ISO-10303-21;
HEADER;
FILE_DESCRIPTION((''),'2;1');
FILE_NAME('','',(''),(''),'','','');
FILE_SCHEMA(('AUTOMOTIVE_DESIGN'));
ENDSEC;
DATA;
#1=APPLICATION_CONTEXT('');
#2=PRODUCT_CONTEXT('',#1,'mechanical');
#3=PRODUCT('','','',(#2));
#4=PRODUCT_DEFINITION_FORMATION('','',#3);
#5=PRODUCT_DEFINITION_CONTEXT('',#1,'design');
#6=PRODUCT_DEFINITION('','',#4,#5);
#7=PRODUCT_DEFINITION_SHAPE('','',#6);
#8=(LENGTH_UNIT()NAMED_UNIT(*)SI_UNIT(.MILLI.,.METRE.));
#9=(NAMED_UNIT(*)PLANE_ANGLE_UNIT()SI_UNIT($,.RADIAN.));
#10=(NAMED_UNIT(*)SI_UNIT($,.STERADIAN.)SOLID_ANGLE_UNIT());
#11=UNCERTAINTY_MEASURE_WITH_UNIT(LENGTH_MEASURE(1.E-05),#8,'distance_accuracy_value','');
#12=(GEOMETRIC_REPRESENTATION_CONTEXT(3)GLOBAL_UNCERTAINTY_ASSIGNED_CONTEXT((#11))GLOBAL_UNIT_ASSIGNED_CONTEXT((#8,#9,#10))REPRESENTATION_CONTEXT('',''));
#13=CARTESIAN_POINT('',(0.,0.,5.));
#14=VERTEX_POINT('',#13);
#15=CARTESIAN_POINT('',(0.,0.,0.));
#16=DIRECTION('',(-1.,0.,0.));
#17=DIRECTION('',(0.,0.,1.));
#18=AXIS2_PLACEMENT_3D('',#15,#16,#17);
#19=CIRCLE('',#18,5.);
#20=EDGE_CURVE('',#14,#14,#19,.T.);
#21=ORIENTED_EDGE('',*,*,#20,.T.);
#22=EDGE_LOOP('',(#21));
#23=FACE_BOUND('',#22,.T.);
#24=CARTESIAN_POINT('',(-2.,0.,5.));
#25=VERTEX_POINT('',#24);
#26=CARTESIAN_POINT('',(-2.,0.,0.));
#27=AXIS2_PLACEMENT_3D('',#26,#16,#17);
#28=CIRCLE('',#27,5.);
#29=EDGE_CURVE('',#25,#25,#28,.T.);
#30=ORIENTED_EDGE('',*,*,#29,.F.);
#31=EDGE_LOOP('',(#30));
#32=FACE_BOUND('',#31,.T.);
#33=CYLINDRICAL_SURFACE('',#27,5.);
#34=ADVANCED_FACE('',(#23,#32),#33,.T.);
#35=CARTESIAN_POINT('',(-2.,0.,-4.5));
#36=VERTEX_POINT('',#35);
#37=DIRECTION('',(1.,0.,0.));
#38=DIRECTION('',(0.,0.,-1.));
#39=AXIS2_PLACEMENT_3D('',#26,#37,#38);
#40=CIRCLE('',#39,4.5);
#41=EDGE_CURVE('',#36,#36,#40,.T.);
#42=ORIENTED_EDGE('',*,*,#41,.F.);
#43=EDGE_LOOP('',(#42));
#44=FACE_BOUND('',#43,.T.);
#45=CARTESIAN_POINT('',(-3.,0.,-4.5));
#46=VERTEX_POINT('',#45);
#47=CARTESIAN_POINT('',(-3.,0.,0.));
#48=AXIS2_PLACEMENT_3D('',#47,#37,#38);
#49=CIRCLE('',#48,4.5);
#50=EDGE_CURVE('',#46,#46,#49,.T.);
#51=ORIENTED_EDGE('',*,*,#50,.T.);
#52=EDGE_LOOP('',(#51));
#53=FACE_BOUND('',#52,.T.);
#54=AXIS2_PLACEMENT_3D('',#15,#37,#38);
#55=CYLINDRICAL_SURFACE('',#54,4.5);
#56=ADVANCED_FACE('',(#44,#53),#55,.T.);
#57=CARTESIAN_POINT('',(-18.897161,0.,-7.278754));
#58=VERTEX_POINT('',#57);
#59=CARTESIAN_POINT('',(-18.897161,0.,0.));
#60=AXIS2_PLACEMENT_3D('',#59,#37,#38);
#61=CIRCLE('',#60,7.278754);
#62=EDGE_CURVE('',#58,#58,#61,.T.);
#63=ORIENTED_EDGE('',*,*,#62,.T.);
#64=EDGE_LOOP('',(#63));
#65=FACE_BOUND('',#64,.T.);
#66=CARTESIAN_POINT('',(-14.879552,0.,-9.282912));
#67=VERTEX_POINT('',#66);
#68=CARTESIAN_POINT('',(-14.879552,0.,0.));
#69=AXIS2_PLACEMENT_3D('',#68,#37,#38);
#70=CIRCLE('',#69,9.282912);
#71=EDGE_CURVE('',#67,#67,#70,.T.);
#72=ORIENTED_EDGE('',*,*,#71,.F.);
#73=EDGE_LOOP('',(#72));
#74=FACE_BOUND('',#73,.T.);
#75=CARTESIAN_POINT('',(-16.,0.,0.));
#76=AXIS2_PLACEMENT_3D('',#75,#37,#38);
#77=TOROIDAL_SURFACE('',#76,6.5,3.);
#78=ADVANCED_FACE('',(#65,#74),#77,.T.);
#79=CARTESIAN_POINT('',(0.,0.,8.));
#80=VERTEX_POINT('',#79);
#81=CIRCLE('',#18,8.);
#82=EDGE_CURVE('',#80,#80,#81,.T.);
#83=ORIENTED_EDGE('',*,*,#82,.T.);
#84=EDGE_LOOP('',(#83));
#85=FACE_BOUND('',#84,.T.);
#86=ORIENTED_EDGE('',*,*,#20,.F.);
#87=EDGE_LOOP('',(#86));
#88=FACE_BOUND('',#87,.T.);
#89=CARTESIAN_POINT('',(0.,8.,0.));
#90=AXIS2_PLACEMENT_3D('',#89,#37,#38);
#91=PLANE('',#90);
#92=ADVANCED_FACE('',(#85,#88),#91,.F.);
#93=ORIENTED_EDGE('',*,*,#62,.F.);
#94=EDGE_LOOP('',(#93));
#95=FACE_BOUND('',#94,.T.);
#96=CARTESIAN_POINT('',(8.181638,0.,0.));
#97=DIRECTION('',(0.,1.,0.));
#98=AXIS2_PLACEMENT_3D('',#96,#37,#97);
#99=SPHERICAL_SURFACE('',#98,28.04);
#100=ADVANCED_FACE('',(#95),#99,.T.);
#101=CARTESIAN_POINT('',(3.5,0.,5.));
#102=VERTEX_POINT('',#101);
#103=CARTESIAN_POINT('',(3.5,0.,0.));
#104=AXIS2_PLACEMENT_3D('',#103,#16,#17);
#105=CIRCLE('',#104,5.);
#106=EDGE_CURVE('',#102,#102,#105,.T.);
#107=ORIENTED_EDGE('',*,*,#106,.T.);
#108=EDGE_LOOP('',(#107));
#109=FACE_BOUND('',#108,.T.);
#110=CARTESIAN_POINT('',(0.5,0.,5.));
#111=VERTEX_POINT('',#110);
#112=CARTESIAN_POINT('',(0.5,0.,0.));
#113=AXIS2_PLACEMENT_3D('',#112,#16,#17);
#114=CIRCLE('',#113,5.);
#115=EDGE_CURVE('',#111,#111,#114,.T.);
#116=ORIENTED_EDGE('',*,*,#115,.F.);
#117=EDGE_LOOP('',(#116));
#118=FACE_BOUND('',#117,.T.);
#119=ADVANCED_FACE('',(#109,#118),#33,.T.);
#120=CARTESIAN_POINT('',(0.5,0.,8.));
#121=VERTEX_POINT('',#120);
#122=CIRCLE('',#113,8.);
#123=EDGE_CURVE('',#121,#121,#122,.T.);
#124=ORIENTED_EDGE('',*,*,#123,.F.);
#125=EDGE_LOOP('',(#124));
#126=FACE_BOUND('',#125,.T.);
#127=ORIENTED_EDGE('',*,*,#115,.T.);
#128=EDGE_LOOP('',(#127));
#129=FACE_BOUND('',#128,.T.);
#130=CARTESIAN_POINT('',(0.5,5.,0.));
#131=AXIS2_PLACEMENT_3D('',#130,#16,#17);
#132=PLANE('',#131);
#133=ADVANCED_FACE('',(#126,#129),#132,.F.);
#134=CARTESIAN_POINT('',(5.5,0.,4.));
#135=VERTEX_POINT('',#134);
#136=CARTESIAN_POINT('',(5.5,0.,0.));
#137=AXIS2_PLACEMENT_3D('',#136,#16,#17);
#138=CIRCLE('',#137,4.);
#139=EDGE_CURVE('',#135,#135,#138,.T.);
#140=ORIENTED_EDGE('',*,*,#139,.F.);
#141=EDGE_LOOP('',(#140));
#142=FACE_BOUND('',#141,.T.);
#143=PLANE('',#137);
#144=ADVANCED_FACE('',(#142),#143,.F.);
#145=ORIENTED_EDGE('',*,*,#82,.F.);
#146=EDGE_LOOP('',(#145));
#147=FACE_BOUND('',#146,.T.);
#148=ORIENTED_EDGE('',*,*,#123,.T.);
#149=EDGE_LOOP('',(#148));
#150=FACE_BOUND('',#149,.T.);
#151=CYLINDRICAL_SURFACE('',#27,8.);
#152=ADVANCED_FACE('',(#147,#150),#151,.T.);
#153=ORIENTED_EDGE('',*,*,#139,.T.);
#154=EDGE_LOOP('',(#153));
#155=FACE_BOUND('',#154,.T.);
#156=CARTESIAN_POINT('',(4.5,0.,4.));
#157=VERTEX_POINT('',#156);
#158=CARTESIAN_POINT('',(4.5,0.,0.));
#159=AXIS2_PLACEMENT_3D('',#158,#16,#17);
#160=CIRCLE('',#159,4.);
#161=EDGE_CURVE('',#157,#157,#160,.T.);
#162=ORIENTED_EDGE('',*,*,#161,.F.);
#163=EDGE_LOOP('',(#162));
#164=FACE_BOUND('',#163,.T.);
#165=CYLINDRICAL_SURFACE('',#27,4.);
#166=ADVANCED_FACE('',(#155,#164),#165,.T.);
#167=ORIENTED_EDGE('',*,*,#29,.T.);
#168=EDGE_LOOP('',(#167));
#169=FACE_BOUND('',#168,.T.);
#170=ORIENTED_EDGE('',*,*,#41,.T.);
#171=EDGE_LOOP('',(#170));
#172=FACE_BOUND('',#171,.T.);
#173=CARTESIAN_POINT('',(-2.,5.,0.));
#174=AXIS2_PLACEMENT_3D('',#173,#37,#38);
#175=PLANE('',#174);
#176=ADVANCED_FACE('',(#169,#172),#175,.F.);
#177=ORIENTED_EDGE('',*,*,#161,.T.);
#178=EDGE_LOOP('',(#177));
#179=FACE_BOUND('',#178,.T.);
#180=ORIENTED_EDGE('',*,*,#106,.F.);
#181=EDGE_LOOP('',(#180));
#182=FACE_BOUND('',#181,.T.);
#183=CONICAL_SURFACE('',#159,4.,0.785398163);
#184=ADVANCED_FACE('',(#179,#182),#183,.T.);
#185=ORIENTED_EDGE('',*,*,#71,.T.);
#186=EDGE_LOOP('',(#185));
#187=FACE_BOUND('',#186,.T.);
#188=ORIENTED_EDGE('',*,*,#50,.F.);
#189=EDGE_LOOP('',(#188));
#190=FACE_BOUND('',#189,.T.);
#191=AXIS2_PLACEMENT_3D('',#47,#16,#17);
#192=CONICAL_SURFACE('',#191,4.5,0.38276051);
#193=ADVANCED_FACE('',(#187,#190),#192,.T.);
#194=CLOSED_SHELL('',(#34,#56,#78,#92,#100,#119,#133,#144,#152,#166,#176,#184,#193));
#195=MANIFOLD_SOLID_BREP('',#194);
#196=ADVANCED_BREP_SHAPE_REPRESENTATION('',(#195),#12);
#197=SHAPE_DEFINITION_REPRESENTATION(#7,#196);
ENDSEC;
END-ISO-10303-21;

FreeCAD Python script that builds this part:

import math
import FreeCAD as App
import Part
import Sketcher

V = App.Vector
Q = App.Units.Quantity

doc = App.newDocument("Part")
body = doc.addObject("PartDesign::Body", "Body")

# Sketch on XY plane
sketch1 = body.newObject("Sketcher::SketchObject", "Sketch")
sketch1.AttachmentSupport = (doc.getObject("XY_Plane"), [""])
sketch1.MapMode = "FlatFace"
sketch1.addGeometry([
    Part.LineSegment(V(5.5, 0, 0), V(5.5, 4, 0)),  # 0
    Part.LineSegment(V(5.5, 4, 0), V(4.5, 4, 0)),  # 1
    Part.LineSegment(V(4.5, 4, 0), V(3.5, 5, 0)),  # 2
    Part.LineSegment(V(3.5, 5, 0), V(0.5, 5, 0)),  # 3
    Part.LineSegment(V(0.5, 5, 0), V(0.5, 8, 0)),  # 4
    Part.LineSegment(V(0.5, 8, 0), V(0, 8, 0)),  # 5
    Part.LineSegment(V(0, 8, 0), V(0, 5, 0)),  # 6
    Part.LineSegment(V(0, 5, 0), V(-2, 5, 0)),  # 7
    Part.LineSegment(V(-2, 5, 0), V(-2, 0, 0)),  # 8
    Part.LineSegment(V(-2, 0, 0), V(5.5, 0, 0)),  # 9
], False)
sketch1.addConstraint([
    Sketcher.Constraint("Coincident", 0, 2, 1, 1),
    Sketcher.Constraint("Coincident", 1, 2, 2, 1),
    Sketcher.Constraint("Coincident", 2, 2, 3, 1),
    Sketcher.Constraint("Coincident", 3, 2, 4, 1),
    Sketcher.Constraint("Coincident", 4, 2, 5, 1),
    Sketcher.Constraint("Coincident", 5, 2, 6, 1),
    Sketcher.Constraint("Coincident", 6, 2, 7, 1),
    Sketcher.Constraint("Coincident", 7, 2, 8, 1),
    Sketcher.Constraint("Coincident", 8, 2, 9, 1),
    Sketcher.Constraint("Coincident", 9, 2, 0, 1),
    Sketcher.Constraint("Vertical", 0),
    Sketcher.Constraint("Horizontal", 1),
    Sketcher.Constraint("Horizontal", 3),
    Sketcher.Constraint("Vertical", 4),
    Sketcher.Constraint("Horizontal", 5),
    Sketcher.Constraint("Vertical", 6),
    Sketcher.Constraint("Horizontal", 7),
    Sketcher.Constraint("Vertical", 8),
    Sketcher.Constraint("Horizontal", 9),
    Sketcher.Constraint("PointOnObject", 5, 2, -2),
    Sketcher.Constraint("PointOnObject", 8, 2, -1),
    Sketcher.Constraint("Horizontal", 3, 2, 6, 2),
    Sketcher.Constraint("Equal", 3, 4),
    Sketcher.Constraint("DistanceX", 1, 2, 1, 1, Q("1 mm")),
    Sketcher.Constraint("DistanceX", 3, 2, 3, 1, Q("3 mm")),
    Sketcher.Constraint("DistanceX", 7, 2, 7, 1, Q("2 mm")),
    Sketcher.Constraint("DistanceY", 0, 1, 0, 2, Q("4 mm")),
    Sketcher.Constraint("DistanceY", 8, 2, 8, 1, Q("5 mm")),
    Sketcher.Constraint("Angle", 2, Q("135 deg")),
    Sketcher.Constraint("DistanceX", 5, 2, 5, 1, Q("0.5 mm")),
])
revolution = body.newObject("PartDesign::Revolution", "Revolution")
revolution.Profile = sketch1
revolution.ReferenceAxis = (sketch1, ["H_Axis"])
revolution.Angle = 360

# Sketch on XY plane
sketch2 = body.newObject("Sketcher::SketchObject", "Sketch001")
sketch2.AttachmentSupport = (doc.getObject("XY_Plane"), [""])
sketch2.MapMode = "FlatFace"
sketch2.addGeometry([
    Part.LineSegment(V(0, 4.5, 0), V(-3, 4.5, 0)),  # 0
    Part.LineSegment(V(-3, 4.5, 0), V(-14.9, 9.3, 0)),  # 1
    Part.ArcOfCircle(Part.Circle(V(-16, 6.5, 0), V(0, 0, 1), 3), math.radians(68), math.radians(165)),  # 2
    Part.ArcOfCircle(Part.Circle(V(8.2, 0, 0), V(0, 0, 1), 28), math.radians(164.95), math.radians(180)),  # 3
    Part.LineSegment(V(-19.9, 0, 0), V(0, 0, 0)),  # 4
    Part.LineSegment(V(0, 0, 0), V(0, 4.5, 0)),  # 5
], False)
sketch2.addConstraint([
    Sketcher.Constraint("Coincident", 0, 2, 1, 1),
    Sketcher.Constraint("Tangent", 1, 2, 2, 1),
    Sketcher.Constraint("Tangent", 2, 2, 3, 1),
    Sketcher.Constraint("Coincident", 3, 2, 4, 1),
    Sketcher.Constraint("Coincident", 4, 2, 5, 1),
    Sketcher.Constraint("Coincident", 5, 2, 0, 1),
    Sketcher.Constraint("Horizontal", 0),
    Sketcher.Constraint("Horizontal", 4),
    Sketcher.Constraint("Vertical", 5),
    Sketcher.Constraint("Coincident", 4, 2, -1, 1),
    Sketcher.Constraint("PointOnObject", 3, 3, -1),
    Sketcher.Constraint("Radius", 2, Q("3 mm")),
    Sketcher.Constraint("DistanceX", 0, 2, 0, 1, Q("3 mm")),
    Sketcher.Constraint("Radius", 3, Q("28.04 mm")),
    Sketcher.Constraint("DistanceY", 5, 1, 5, 2, Q("4.5 mm")),
    Sketcher.Constraint("DistanceX", 2, 3, -1, 1, Q("16 mm")),
    Sketcher.Constraint("DistanceY", 0, 2, 2, 3, Q("2 mm")),
])
revolution2 = body.newObject("PartDesign::Revolution", "Revolution001")
revolution2.Profile = sketch2
revolution2.ReferenceAxis = (sketch2, ["H_Axis"])
revolution2.Angle = 360

doc.recompute()
